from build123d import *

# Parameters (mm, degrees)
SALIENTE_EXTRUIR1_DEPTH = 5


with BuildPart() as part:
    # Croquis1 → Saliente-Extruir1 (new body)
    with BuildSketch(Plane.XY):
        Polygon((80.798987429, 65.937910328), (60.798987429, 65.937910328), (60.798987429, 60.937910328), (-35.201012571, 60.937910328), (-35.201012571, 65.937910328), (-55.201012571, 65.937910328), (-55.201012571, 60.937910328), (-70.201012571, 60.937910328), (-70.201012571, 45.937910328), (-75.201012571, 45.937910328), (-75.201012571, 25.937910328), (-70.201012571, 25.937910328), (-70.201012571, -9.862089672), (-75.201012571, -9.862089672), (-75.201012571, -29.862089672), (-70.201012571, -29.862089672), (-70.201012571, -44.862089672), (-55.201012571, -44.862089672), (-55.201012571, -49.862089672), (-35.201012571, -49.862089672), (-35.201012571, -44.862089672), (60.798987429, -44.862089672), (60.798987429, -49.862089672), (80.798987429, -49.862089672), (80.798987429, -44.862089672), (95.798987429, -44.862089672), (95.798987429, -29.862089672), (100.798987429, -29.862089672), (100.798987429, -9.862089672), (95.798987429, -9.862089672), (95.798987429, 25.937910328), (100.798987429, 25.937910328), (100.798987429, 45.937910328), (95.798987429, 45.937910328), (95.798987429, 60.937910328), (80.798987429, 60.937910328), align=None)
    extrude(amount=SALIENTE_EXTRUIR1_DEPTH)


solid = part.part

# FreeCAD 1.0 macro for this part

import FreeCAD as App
import Part
import Sketcher
Q = App.Units.Quantity


def add_polygon(sketch, points):
    """Adds a closed chain of lines whose ends are joined by coincident constraints."""
    first, n = sketch.GeometryCount, len(points)
    for a, b in zip(points, points[1:] + points[:1]):
        sketch.addGeometry(Part.LineSegment(App.Vector(*a, 0), App.Vector(*b, 0)), False)
    for i in range(n):
        sketch.addConstraint(Sketcher.Constraint("Coincident", first + i, 2, first + (i + 1) % n, 1))

doc = App.newDocument("Part")
params = doc.addObject("Spreadsheet::Sheet", "Params")
for row, (alias, value) in enumerate([
    ("sketch1_width", "20 mm"),
    ("sketch1_width2", "96 mm"),
    ("sketch1_width3", "15 mm"),
    ("sketch1_width4", "5 mm"),
    ("sketch1_height", "35.8 mm"),
    ("pad1_length", "5 mm"),
], start=1):
    params.set(f"A{row}", alias)
    params.set(f"B{row}", "=" + value)
    params.setAlias(f"B{row}", alias)

body = doc.addObject("PartDesign::Body", "Body")

sketch1 = body.newObject("Sketcher::SketchObject", "Sketch")
sketch1.AttachmentSupport = (doc.getObject("XY_Plane"), [""])
sketch1.MapMode = "FlatFace"
add_polygon(sketch1, [(80.798987, 65.93791), (60.798987, 65.93791), (60.798987, 60.93791), (-35.201013, 60.93791), (-35.201013, 65.93791), (-55.201013, 65.93791), (-55.201013, 60.93791), (-70.201013, 60.93791), (-70.201013, 45.93791), (-75.201013, 45.93791), (-75.201013, 25.93791), (-70.201013, 25.93791), (-70.201013, -9.86209), (-75.201013, -9.86209), (-75.201013, -29.86209), (-70.201013, -29.86209), (-70.201013, -44.86209), (-55.201013, -44.86209), (-55.201013, -49.86209), (-35.201013, -49.86209), (-35.201013, -44.86209), (60.798987, -44.86209), (60.798987, -49.86209), (80.798987, -49.86209), (80.798987, -44.86209), (95.798987, -44.86209), (95.798987, -29.86209), (100.798987, -29.86209), (100.798987, -9.86209), (95.798987, -9.86209), (95.798987, 25.93791), (100.798987, 25.93791), (100.798987, 45.93791), (95.798987, 45.93791), (95.798987, 60.93791), (80.798987, 60.93791)])
sketch1.addConstraint([
    Sketcher.Constraint("Horizontal", 0),
    Sketcher.Constraint("Vertical", 1),
    Sketcher.Constraint("Horizontal", 2),
    Sketcher.Constraint("Vertical", 3),
    Sketcher.Constraint("Horizontal", 4),
    Sketcher.Constraint("Vertical", 5),
    Sketcher.Constraint("Horizontal", 6),
    Sketcher.Constraint("Vertical", 7),
    Sketcher.Constraint("Horizontal", 8),
    Sketcher.Constraint("Vertical", 9),
    Sketcher.Constraint("Horizontal", 10),
    Sketcher.Constraint("Vertical", 11),
    Sketcher.Constraint("Horizontal", 12),
    Sketcher.Constraint("Vertical", 13),
    Sketcher.Constraint("Horizontal", 14),
    Sketcher.Constraint("Vertical", 15),
    Sketcher.Constraint("Horizontal", 16),
    Sketcher.Constraint("Vertical", 17),
    Sketcher.Constraint("Horizontal", 18),
    Sketcher.Constraint("Vertical", 19),
    Sketcher.Constraint("Horizontal", 20),
    Sketcher.Constraint("Vertical", 21),
    Sketcher.Constraint("Horizontal", 22),
    Sketcher.Constraint("Vertical", 23),
    Sketcher.Constraint("Horizontal", 24),
    Sketcher.Constraint("Vertical", 25),
    Sketcher.Constraint("Horizontal", 26),
    Sketcher.Constraint("Vertical", 27),
    Sketcher.Constraint("Horizontal", 28),
    Sketcher.Constraint("Vertical", 29),
    Sketcher.Constraint("Horizontal", 30),
    Sketcher.Constraint("Vertical", 31),
    Sketcher.Constraint("Horizontal", 32),
    Sketcher.Constraint("Vertical", 33),
    Sketcher.Constraint("Horizontal", 34),
    Sketcher.Constraint("Vertical", 35),
    Sketcher.Constraint("Horizontal", 0, 2, 3, 2),
    Sketcher.Constraint("Horizontal", 2, 2, 5, 2),
    Sketcher.Constraint("Horizontal", 16, 2, 19, 2),
    Sketcher.Constraint("Horizontal", 18, 2, 21, 2),
    Sketcher.Constraint("Horizontal", 20, 2, 23, 2),
    Sketcher.Constraint("Horizontal", 14, 2, 25, 2),
    Sketcher.Constraint("Horizontal", 12, 2, 27, 2),
    Sketcher.Constraint("Horizontal", 10, 2, 29, 2),
    Sketcher.Constraint("Horizontal", 8, 2, 31, 2),
    Sketcher.Constraint("Horizontal", 6, 2, 33, 2),
    Sketcher.Constraint("Vertical", 7, 2, 10, 2),
    Sketcher.Constraint("Vertical", 9, 2, 12, 2),
    Sketcher.Constraint("Vertical", 11, 2, 14, 2),
    Sketcher.Constraint("Vertical", 5, 2, 16, 2),
    Sketcher.Constraint("Vertical", 3, 2, 18, 2),
    Sketcher.Constraint("Vertical", 1, 2, 20, 2),
    Sketcher.Constraint("Vertical", 25, 2, 28, 2),
    Sketcher.Constraint("Vertical", 27, 2, 30, 2),
    Sketcher.Constraint("Vertical", 29, 2, 32, 2),
    Sketcher.Constraint("Vertical", 23, 2, 34, 2),
    Sketcher.Constraint("Equal", 0, 4),
    Sketcher.Constraint("Equal", 16, 24),
    Sketcher.Constraint("Equal", 14, 26),
    Sketcher.Constraint("Equal", 32, 1),
    Sketcher.Constraint("Equal", 34, 7),
    Sketcher.Constraint("Equal", 22, 9),
    Sketcher.Constraint("Equal", 9, 13),
    Sketcher.Constraint("Equal", 7, 15),
    Sketcher.Constraint("Equal", 5, 17),
    Sketcher.Constraint("DistanceX", 0, 2, 0, 1, Q("20 mm")),
    Sketcher.Constraint("DistanceX", 2, 2, 2, 1, Q("96 mm")),
    Sketcher.Constraint("DistanceX", 6, 2, 6, 1, Q("15 mm")),
    Sketcher.Constraint("DistanceX", 8, 2, 8, 1, Q("5 mm")),
    Sketcher.Constraint("DistanceY", 11, 2, 11, 1, Q("35.8 mm")),
    Sketcher.Constraint("DistanceY", -1, 1, 0, 2, Q("65.93791 mm")),
    Sketcher.Constraint("DistanceX", -1, 1, 0, 2, Q("60.798987 mm")),
])
sketch1.setExpression("Constraints[101]", "Params.sketch1_width")
sketch1.setExpression("Constraints[102]", "Params.sketch1_width2")
sketch1.setExpression("Constraints[103]", "Params.sketch1_width3")
sketch1.setExpression("Constraints[104]", "Params.sketch1_width4")
sketch1.setExpression("Constraints[105]", "Params.sketch1_height")
pad1 = body.newObject("PartDesign::Pad", "Pad")
pad1.Profile = sketch1
pad1.setExpression("Length", "Params.pad1_length")

doc.recompute()
